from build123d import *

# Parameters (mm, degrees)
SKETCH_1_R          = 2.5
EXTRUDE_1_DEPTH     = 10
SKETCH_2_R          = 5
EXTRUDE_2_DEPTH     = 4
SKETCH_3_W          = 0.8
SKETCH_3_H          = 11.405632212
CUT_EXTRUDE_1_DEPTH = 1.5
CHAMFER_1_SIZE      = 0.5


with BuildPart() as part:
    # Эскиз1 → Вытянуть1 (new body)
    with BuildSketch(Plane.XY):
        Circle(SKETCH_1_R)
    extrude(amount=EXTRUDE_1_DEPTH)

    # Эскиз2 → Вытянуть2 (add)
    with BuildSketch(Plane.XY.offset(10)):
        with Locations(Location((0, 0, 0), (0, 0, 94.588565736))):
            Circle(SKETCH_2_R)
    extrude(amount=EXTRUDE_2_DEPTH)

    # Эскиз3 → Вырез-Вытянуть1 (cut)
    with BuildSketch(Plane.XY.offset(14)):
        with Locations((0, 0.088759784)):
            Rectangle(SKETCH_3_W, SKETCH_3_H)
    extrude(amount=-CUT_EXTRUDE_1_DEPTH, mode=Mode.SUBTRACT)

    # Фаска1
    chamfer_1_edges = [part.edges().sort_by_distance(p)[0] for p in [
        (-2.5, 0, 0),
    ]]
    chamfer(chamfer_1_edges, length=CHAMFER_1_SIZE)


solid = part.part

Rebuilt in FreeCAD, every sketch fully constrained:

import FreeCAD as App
import Part
import Sketcher
from FreeCAD import Vector


def edges_at(feature, points):
    """Names of the edges that pass closest to the given points."""
    edges = feature.Shape.Edges
    near = lambda p: min(range(len(edges)), key=lambda i: edges[i].distToShape(Part.Vertex(*p))[0])
    return sorted({f"Edge{near(p) + 1}" for p in points})

doc = App.newDocument("Part")
params = doc.addObject("Spreadsheet::Sheet", "Params")
for row, (alias, value) in enumerate([
    ("sketch1_diameter", "5 mm"),
    ("pad1_length", "10 mm"),
    ("sketch2_diameter", "10 mm"),
    ("pad2_length", "4 mm"),
    ("sketch3_width", "0.8 mm"),
    ("pocket1_length", "1.5 mm"),
    ("chamfer_size", "0.5 mm"),
], start=1):
    params.set(f"A{row}", alias)
    params.set(f"B{row}", "=" + value)
    params.setAlias(f"B{row}", alias)

body = doc.addObject("PartDesign::Body", "Body")

sketch1 = body.newObject("Sketcher::SketchObject", "Sketch")
sketch1.AttachmentSupport = (doc.getObject("XY_Plane"), [""])
sketch1.MapMode = "FlatFace"
sketch1.addGeometry(Part.Circle(Vector(0, 0, 0), Vector(0, 0, 1), 2.5), False)
sketch1.addConstraint(Sketcher.Constraint("Coincident", 0, 3, -1, 1))
sketch1.addConstraint(Sketcher.Constraint("Diameter", 0, 5.0))
sketch1.setExpression("Constraints[1]", "Params.sketch1_diameter")
pad1 = body.newObject("PartDesign::Pad", "Pad")
pad1.Profile = sketch1
pad1.setExpression("Length", "Params.pad1_length")

sketch2 = body.newObject("Sketcher::SketchObject", "Sketch001")
sketch2.AttachmentSupport = (doc.getObject("XY_Plane"), [""])
sketch2.MapMode = "FlatFace"
sketch2.AttachmentOffset = App.Placement(Vector(0, 0, 10), App.Rotation())
sketch2.addGeometry(Part.Circle(Vector(0, 0, 0), Vector(0, 0, 1), 5), False)
sketch2.addConstraint(Sketcher.Constraint("Coincident", 0, 3, -1, 1))
sketch2.addConstraint(Sketcher.Constraint("Diameter", 0, 10.0))
sketch2.setExpression("Constraints[1]", "Params.sketch2_diameter")
pad2 = body.newObject("PartDesign::Pad", "Pad001")
pad2.Profile = sketch2
pad2.setExpression("Length", "Params.pad2_length")

sketch3 = body.newObject("Sketcher::SketchObject", "Sketch002")
sketch3.AttachmentSupport = (doc.getObject("XY_Plane"), [""])
sketch3.MapMode = "FlatFace"
sketch3.AttachmentOffset = App.Placement(Vector(0, 0, 14), App.Rotation())
sketch3.addGeometry(Part.LineSegment(Vector(-0.4, 5.791576, 0), Vector(-0.4, -5.614056, 0)), False)
sketch3.addGeometry(Part.LineSegment(Vector(-0.4, -5.614056, 0), Vector(0.4, -5.614056, 0)), False)
sketch3.addGeometry(Part.LineSegment(Vector(0.4, -5.614056, 0), Vector(0.4, 5.791576, 0)), False)
sketch3.addGeometry(Part.LineSegment(Vector(0.4, 5.791576, 0), Vector(-0.4, 5.791576, 0)), False)
sketch3.addConstraint(Sketcher.Constraint("Coincident", 0, 2, 1, 1))
sketch3.addConstraint(Sketcher.Constraint("Coincident", 1, 2, 2, 1))
sketch3.addConstraint(Sketcher.Constraint("Coincident", 2, 2, 3, 1))
sketch3.addConstraint(Sketcher.Constraint("Coincident", 3, 2, 0, 1))
sketch3.addConstraint(Sketcher.Constraint("Vertical", 0))
sketch3.addConstraint(Sketcher.Constraint("Horizontal", 1))
sketch3.addConstraint(Sketcher.Constraint("Vertical", 2))
sketch3.addConstraint(Sketcher.Constraint("Horizontal", 3))
sketch3.addConstraint(Sketcher.Constraint("DistanceX", 1, 1, 1, 2, 0.8))
sketch3.addConstraint(Sketcher.Constraint("DistanceX", 0, 2, -1, 1, 0.4))
sketch3.addConstraint(Sketcher.Constraint("DistanceY", 0, 2, 0, 1, 11.405632))
sketch3.addConstraint(Sketcher.Constraint("DistanceY", 0, 2, -1, 1, 5.614056))
sketch3.setExpression("Constraints[8]", "Params.sketch3_width")
pocket1 = body.newObject("PartDesign::Pocket", "Pocket")
pocket1.Profile = sketch3
pocket1.setExpression("Length", "Params.pocket1_length")
doc.recompute()

chamfer = body.newObject("PartDesign::Chamfer", "Chamfer")
chamfer.Base = (pocket1, edges_at(pocket1, [(-2.5, 0, 0)]))
chamfer.setExpression("Size", "Params.chamfer_size")

doc.recompute()
